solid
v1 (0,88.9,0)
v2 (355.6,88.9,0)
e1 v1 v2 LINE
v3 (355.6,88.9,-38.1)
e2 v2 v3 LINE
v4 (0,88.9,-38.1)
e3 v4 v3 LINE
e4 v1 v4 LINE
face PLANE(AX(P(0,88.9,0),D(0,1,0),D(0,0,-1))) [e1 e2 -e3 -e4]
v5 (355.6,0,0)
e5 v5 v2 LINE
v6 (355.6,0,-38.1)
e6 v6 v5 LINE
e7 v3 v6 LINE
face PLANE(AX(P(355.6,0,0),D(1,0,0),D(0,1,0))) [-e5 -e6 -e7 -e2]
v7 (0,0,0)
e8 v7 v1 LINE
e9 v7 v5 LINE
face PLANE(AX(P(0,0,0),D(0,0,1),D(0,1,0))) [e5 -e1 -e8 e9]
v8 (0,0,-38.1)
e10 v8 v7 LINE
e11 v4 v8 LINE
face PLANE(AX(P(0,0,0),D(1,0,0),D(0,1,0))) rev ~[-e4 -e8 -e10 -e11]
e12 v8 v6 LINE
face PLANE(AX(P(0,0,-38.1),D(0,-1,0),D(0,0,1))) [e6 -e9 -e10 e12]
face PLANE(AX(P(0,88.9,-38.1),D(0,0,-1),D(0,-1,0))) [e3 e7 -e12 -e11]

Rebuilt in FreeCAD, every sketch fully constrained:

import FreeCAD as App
import Part
import Sketcher
Q = App.Units.Quantity


def add_polygon(sketch, points):
    """Adds a closed chain of lines whose ends are joined by coincident constraints."""
    first, n = sketch.GeometryCount, len(points)
    for a, b in zip(points, points[1:] + points[:1]):
        sketch.addGeometry(Part.LineSegment(App.Vector(*a, 0), App.Vector(*b, 0)), False)
    for i in range(n):
        sketch.addConstraint(Sketcher.Constraint("Coincident", first + i, 2, first + (i + 1) % n, 1))

doc = App.newDocument("Part")
body = doc.addObject("PartDesign::Body", "Body")

sketch1 = doc.addObject("Sketcher::SketchObject", "Sketch")
body.addObject(sketch1)
sketch1.AttachmentSupport = (doc.YZ_Plane, [""])
sketch1.MapMode = "FlatFace"
add_polygon(sketch1, [(89, 0), (0, 0), (0, -38), (89, -38)])
sketch1.addConstraint([
    Sketcher.Constraint("Horizontal", 0),
    Sketcher.Constraint("Vertical", 1),
    Sketcher.Constraint("Horizontal", 2),
    Sketcher.Constraint("Vertical", 3),
    Sketcher.Constraint("Coincident", 0, 2, -1, 1),
    Sketcher.Constraint("DistanceX", 0, 2, 0, 1, Q("3.5 in")),
    Sketcher.Constraint("DistanceY", 1, 2, 1, 1, Q("1.5 in")),
])
pad1 = doc.addObject("PartDesign::Pad", "Pad")
body.addObject(pad1)
pad1.Profile = sketch1
pad1.Length = Q("14 in")

doc.recompute()
